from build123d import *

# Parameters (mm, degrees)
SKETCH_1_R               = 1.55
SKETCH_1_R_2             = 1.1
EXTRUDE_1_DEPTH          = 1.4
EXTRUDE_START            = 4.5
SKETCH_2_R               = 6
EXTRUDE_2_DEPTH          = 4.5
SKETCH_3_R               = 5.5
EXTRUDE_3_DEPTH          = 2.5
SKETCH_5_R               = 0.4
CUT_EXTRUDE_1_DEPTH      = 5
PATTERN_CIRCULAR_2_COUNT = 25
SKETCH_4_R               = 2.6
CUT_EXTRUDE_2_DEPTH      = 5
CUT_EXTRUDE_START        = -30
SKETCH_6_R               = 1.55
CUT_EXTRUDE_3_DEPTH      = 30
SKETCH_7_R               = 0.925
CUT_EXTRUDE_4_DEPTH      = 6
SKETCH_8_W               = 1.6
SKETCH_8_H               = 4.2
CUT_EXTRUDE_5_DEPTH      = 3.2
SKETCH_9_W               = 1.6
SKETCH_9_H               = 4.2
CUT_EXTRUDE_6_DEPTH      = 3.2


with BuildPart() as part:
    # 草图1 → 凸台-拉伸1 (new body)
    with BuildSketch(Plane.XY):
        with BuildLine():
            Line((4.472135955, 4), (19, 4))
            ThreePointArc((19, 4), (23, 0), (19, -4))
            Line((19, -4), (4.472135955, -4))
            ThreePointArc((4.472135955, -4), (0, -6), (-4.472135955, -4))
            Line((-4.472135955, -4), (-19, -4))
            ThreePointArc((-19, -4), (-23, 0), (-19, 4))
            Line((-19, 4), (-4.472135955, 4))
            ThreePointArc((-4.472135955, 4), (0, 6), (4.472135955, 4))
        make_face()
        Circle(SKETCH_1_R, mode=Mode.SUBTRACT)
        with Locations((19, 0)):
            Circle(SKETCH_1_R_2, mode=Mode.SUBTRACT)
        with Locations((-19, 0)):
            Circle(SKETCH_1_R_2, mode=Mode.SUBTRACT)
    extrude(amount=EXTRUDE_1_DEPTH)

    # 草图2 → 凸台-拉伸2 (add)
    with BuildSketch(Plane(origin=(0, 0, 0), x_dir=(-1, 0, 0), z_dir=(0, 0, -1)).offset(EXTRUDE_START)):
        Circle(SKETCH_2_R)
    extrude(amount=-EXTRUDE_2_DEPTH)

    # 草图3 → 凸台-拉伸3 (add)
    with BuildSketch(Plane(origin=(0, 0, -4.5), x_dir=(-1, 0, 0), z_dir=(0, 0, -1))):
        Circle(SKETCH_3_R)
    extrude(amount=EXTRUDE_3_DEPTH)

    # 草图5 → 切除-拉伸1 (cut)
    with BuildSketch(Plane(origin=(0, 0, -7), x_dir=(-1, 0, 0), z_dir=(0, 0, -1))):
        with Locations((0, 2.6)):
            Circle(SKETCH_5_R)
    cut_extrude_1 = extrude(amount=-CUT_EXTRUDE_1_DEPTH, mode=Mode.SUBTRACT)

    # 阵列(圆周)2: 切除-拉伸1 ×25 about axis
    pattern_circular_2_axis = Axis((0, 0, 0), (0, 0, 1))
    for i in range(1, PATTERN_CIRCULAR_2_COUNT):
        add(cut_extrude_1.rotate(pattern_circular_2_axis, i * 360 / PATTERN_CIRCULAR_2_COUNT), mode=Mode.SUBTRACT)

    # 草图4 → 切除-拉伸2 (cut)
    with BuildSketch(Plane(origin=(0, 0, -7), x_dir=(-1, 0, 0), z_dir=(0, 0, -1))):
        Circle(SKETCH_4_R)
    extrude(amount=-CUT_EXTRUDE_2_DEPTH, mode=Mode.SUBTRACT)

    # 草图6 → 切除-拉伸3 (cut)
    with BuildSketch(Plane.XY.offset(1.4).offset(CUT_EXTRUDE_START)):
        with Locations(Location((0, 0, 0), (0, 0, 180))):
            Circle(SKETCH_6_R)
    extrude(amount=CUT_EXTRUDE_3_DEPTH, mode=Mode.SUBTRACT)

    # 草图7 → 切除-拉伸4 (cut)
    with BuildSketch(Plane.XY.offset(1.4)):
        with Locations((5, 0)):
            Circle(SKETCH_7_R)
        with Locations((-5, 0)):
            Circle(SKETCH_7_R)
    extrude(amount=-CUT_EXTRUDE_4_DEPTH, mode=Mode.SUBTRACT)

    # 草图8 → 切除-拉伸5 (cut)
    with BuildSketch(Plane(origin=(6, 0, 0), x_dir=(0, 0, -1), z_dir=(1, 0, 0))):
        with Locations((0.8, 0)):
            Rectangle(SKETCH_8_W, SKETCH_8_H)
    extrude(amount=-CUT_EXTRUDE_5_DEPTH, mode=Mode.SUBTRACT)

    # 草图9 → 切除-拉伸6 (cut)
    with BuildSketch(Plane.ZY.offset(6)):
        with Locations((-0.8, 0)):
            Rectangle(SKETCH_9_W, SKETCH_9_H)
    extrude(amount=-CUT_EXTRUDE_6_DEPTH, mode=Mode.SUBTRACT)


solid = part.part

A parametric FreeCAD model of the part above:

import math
import FreeCAD as App
import Part
import Sketcher
Q = App.Units.Quantity

doc = App.newDocument("Part")
body = doc.addObject("PartDesign::Body", "Body")

sketch1 = doc.addObject("Sketcher::SketchObject", "Sketch")
body.addObject(sketch1)
sketch1.AttachmentSupport = (doc.XY_Plane, [""])
sketch1.MapMode = "FlatFace"
sketch1.addGeometry(Part.LineSegment(App.Vector(19, 4, 0), App.Vector(4.5, 4, 0)), False)
sketch1.addGeometry(Part.ArcOfCircle(Part.Circle(App.Vector(0, 0, 0), App.Vector(0, 0, 1), 6), math.radians(42), math.radians(138)), False)
sketch1.addGeometry(Part.LineSegment(App.Vector(-4.5, 4, 0), App.Vector(-19, 4, 0)), False)
sketch1.addGeometry(Part.ArcOfCircle(Part.Circle(App.Vector(-19, 0, 0), App.Vector(0, 0, 1), 4), math.radians(90), math.radians(270)), False)
sketch1.addGeometry(Part.LineSegment(App.Vector(-19, -4, 0), App.Vector(-4.5, -4, 0)), False)
sketch1.addGeometry(Part.ArcOfCircle(Part.Circle(App.Vector(0, 0, 0), App.Vector(0, 0, 1), 6), math.radians(-138), math.radians(-42)), False)
sketch1.addGeometry(Part.LineSegment(App.Vector(4.5, -4, 0), App.Vector(19, -4, 0)), False)
sketch1.addGeometry(Part.ArcOfCircle(Part.Circle(App.Vector(19, 0, 0), App.Vector(0, 0, 1), 4), math.radians(-90), math.radians(90)), False)
sketch1.addGeometry(Part.Circle(App.Vector(19, 0, 0), App.Vector(0, 0, 1), 1.1), False)
sketch1.addGeometry(Part.Circle(App.Vector(0, 0, 0), App.Vector(0, 0, 1), 1.6), False)
sketch1.addGeometry(Part.Circle(App.Vector(-19, 0, 0), App.Vector(0, 0, 1), 1.1), False)
sketch1.addConstraint(Sketcher.Constraint("Coincident", 0, 2, 1, 1))
sketch1.addConstraint(Sketcher.Constraint("Coincident", 1, 2, 2, 1))
sketch1.addConstraint(Sketcher.Constraint("Tangent", 2, 2, 3, 1))
sketch1.addConstraint(Sketcher.Constraint("Tangent", 3, 2, 4, 1))
sketch1.addConstraint(Sketcher.Constraint("Coincident", 4, 2, 5, 1))
sketch1.addConstraint(Sketcher.Constraint("Coincident", 5, 2, 6, 1))
sketch1.addConstraint(Sketcher.Constraint("Tangent", 6, 2, 7, 1))
sketch1.addConstraint(Sketcher.Constraint("Tangent", 7, 2, 0, 1))
sketch1.addConstraint(Sketcher.Constraint("Horizontal", 0))
sketch1.addConstraint(Sketcher.Constraint("Horizontal", 2))
sketch1.addConstraint(Sketcher.Constraint("Horizontal", 4))
sketch1.addConstraint(Sketcher.Constraint("Horizontal", 6))
sketch1.addConstraint(Sketcher.Constraint("Coincident", 1, 3, -1, 1))
sketch1.addConstraint(Sketcher.Constraint("Coincident", 5, 3, -1, 1))
sketch1.addConstraint(Sketcher.Constraint("Coincident", 9, 3, -1, 1))
sketch1.addConstraint(Sketcher.Constraint("Coincident", 8, 3, 7, 3))
sketch1.addConstraint(Sketcher.Constraint("Coincident", 10, 3, 3, 3))
sketch1.addConstraint(Sketcher.Constraint("Equal", 1, 5))
sketch1.addConstraint(Sketcher.Constraint("Equal", 3, 7))
sketch1.addConstraint(Sketcher.Constraint("Equal", 8, 10))
sketch1.addConstraint(Sketcher.Constraint("Symmetric", 3, 3, 7, 3, -1, 1))
sketch1.addConstraint(Sketcher.Constraint("PointOnObject", 3, 3, -1))
sketch1.addConstraint(Sketcher.Constraint("Radius", 1, Q("6 mm")))
sketch1.addConstraint(Sketcher.Constraint("Radius", 3, Q("4 mm")))
sketch1.addConstraint(Sketcher.Constraint("Diameter", 8, Q("2.2 mm")))
sketch1.addConstraint(Sketcher.Constraint("Diameter", 9, Q("3.1 mm")))
sketch1.addConstraint(Sketcher.Constraint("DistanceX", 3, 3, -1, 1, Q("19 mm")))
pad1 = doc.addObject("PartDesign::Pad", "Pad")
body.addObject(pad1)
pad1.Profile = sketch1
pad1.Length = 1.4

sketch2 = doc.addObject("Sketcher::SketchObject", "Sketch001")
body.addObject(sketch2)
sketch2.AttachmentSupport = (doc.XY_Plane, [""])
sketch2.MapMode = "FlatFace"
sketch2.AttachmentOffset = App.Placement(App.Vector(0, 0, -4.5), App.Rotation())
sketch2.addGeometry(Part.Circle(App.Vector(0, 0, 0), App.Vector(0, 0, 1), 6), False)
sketch2.addConstraint(Sketcher.Constraint("Coincident", 0, 3, -1, 1))
sketch2.addConstraint(Sketcher.Constraint("Diameter", 0, Q("12 mm")))
pad2 = doc.addObject("PartDesign::Pad", "Pad001")
body.addObject(pad2)
pad2.Profile = sketch2
pad2.Length = 4.5

sketch3 = doc.addObject("Sketcher::SketchObject", "Sketch002")
body.addObject(sketch3)
sketch3.AttachmentSupport = (doc.XY_Plane, [""])
sketch3.MapMode = "FlatFace"
sketch3.AttachmentOffset = App.Placement(App.Vector(0, 0, -4.5), App.Rotation())
sketch3.addGeometry(Part.Circle(App.Vector(0, 0, 0), App.Vector(0, 0, 1), 6), False)
sketch3.addConstraint(Sketcher.Constraint("Coincident", 0, 3, -1, 1))
sketch3.addConstraint(Sketcher.Constraint("Diameter", 0, Q("11 mm")))
pad3 = doc.addObject("PartDesign::Pad", "Pad002")
body.addObject(pad3)
pad3.Profile = sketch3
pad3.Length = 2.5
pad3.Reversed = True

sketch4 = doc.addObject("Sketcher::SketchObject", "Sketch003")
body.addObject(sketch4)
sketch4.AttachmentSupport = (doc.XY_Plane, [""])
sketch4.MapMode = "FlatFace"
sketch4.AttachmentOffset = App.Placement(App.Vector(0, 0, -7), App.Rotation())
sketch4.addGeometry(Part.Circle(App.Vector(0, 2.6, 0), App.Vector(0, 0, 1), 0.4), False)
sketch4.addConstraint(Sketcher.Constraint("PointOnObject", 0, 3, -2))
sketch4.addConstraint(Sketcher.Constraint("Diameter", 0, Q("0.8 mm")))
sketch4.addConstraint(Sketcher.Constraint("DistanceY", -1, 1, 0, 3, Q("2.6 mm")))
pocket1 = doc.addObject("PartDesign::Pocket", "Pocket")
body.addObject(pocket1)
pocket1.Profile = sketch4
pocket1.Length = 5
pocket1.Reversed = True
doc.recompute()

polarpattern = doc.addObject("PartDesign::PolarPattern", "PolarPattern")
body.addObject(polarpattern)
polarpattern.Originals = [pocket1]
polarpattern.Axis = (doc.Z_Axis, [""])
polarpattern.Angle = 360
polarpattern.Occurrences = 25
body.Tip = polarpattern

sketch5 = doc.addObject("Sketcher::SketchObject", "Sketch004")
body.addObject(sketch5)
sketch5.AttachmentSupport = (doc.XY_Plane, [""])
sketch5.MapMode = "FlatFace"
sketch5.AttachmentOffset = App.Placement(App.Vector(0, 0, -7), App.Rotation())
sketch5.addGeometry(Part.Circle(App.Vector(0, 0, 0), App.Vector(0, 0, 1), 2.6), False)
sketch5.addConstraint(Sketcher.Constraint("Coincident", 0, 3, -1, 1))
sketch5.addConstraint(Sketcher.Constraint("Diameter", 0, Q("5.2 mm")))
pocket2 = doc.addObject("PartDesign::Pocket", "Pocket001")
body.addObject(pocket2)
pocket2.Profile = sketch5
pocket2.Length = 5
pocket2.Reversed = True

sketch6 = doc.addObject("Sketcher::SketchObject", "Sketch005")
body.addObject(sketch6)
sketch6.AttachmentSupport = (doc.XY_Plane, [""])
sketch6.MapMode = "FlatFace"
sketch6.AttachmentOffset = App.Placement(App.Vector(0, 0, -28.6), App.Rotation())
sketch6.addGeometry(Part.Circle(App.Vector(0, 0, 0), App.Vector(0, 0, 1), 1.6), False)
sketch6.addConstraint(Sketcher.Constraint("Coincident", 0, 3, -1, 1))
sketch6.addConstraint(Sketcher.Constraint("Diameter", 0, Q("3.1 mm")))
pocket3 = doc.addObject("PartDesign::Pocket", "Pocket002")
body.addObject(pocket3)
pocket3.Profile = sketch6
pocket3.Length = 30
pocket3.Reversed = True

sketch7 = doc.addObject("Sketcher::SketchObject", "Sketch006")
body.addObject(sketch7)
sketch7.AttachmentSupport = (doc.XY_Plane, [""])
sketch7.MapMode = "FlatFace"
sketch7.AttachmentOffset = App.Placement(App.Vector(0, 0, 1.4), App.Rotation())
sketch7.addGeometry(Part.Circle(App.Vector(5, 0, 0), App.Vector(0, 0, 1), 0.9), False)
sketch7.addGeometry(Part.Circle(App.Vector(-5, 0, 0), App.Vector(0, 0, 1), 0.9), False)
sketch7.addConstraint(Sketcher.Constraint("Equal", 0, 1))
sketch7.addConstraint(Sketcher.Constraint("Symmetric", 0, 3, 1, 3, -1, 1))
sketch7.addConstraint(Sketcher.Constraint("PointOnObject", 0, 3, -1))
sketch7.addConstraint(Sketcher.Constraint("Diameter", 0, Q("1.85 mm")))
sketch7.addConstraint(Sketcher.Constraint("DistanceX", -1, 1, 0, 3, Q("5 mm")))
pocket4 = doc.addObject("PartDesign::Pocket", "Pocket003")
body.addObject(pocket4)
pocket4.Profile = sketch7
pocket4.Length = 6

sketch8 = doc.addObject("Sketcher::SketchObject", "Sketch007")
body.addObject(sketch8)
sketch8.AttachmentSupport = (doc.YZ_Plane, [""])
sketch8.MapMode = "FlatFace"
sketch8.AttachmentOffset = App.Placement(App.Vector(0, 0, 6), App.Rotation())
sketch8.addGeometry(Part.LineSegment(App.Vector(2.1, 0, 0), App.Vector(-2.1, 0, 0)), False)
sketch8.addGeometry(Part.LineSegment(App.Vector(-2.1, 0, 0), App.Vector(-2.1, -1.6, 0)), False)
sketch8.addGeometry(Part.LineSegment(App.Vector(-2.1, -1.6, 0), App.Vector(2.1, -1.6, 0)), False)
sketch8.addGeometry(Part.LineSegment(App.Vector(2.1, -1.6, 0), App.Vector(2.1, 0, 0)), False)
sketch8.addConstraint(Sketcher.Constraint("Coincident", 0, 2, 1, 1))
sketch8.addConstraint(Sketcher.Constraint("Coincident", 1, 2, 2, 1))
sketch8.addConstraint(Sketcher.Constraint("Coincident", 2, 2, 3, 1))
sketch8.addConstraint(Sketcher.Constraint("Coincident", 3, 2, 0, 1))
sketch8.addConstraint(Sketcher.Constraint("Horizontal", 0))
sketch8.addConstraint(Sketcher.Constraint("Vertical", 1))
sketch8.addConstraint(Sketcher.Constraint("Horizontal", 2))
sketch8.addConstraint(Sketcher.Constraint("Vertical", 3))
sketch8.addConstraint(Sketcher.Constraint("Symmetric", 0, 2, 3, 2, -1, 1))
sketch8.addConstraint(Sketcher.Constraint("DistanceX", 0, 2, 0, 1, Q("4.2 mm")))
sketch8.addConstraint(Sketcher.Constraint("DistanceY", 1, 2, 1, 1, Q("1.6 mm")))
pocket5 = doc.addObject("PartDesign::Pocket", "Pocket004")
body.addObject(pocket5)
pocket5.Profile = sketch8
pocket5.Length = 3.2

sketch9 = doc.addObject("Sketcher::SketchObject", "Sketch008")
body.addObject(sketch9)
sketch9.AttachmentSupport = (doc.YZ_Plane, [""])
sketch9.MapMode = "FlatFace"
sketch9.AttachmentOffset = App.Placement(App.Vector(0, 0, -6), App.Rotation())
sketch9.addGeometry(Part.LineSegment(App.Vector(2.1, -1.6, 0), App.Vector(-2.1, -1.6, 0)), False)
sketch9.addGeometry(Part.LineSegment(App.Vector(-2.1, -1.6, 0), App.Vector(-2.1, 0, 0)), False)
sketch9.addGeometry(Part.LineSegment(App.Vector(-2.1, 0, 0), App.Vector(2.1, 0, 0)), False)
sketch9.addGeometry(Part.LineSegment(App.Vector(2.1, 0, 0), App.Vector(2.1, -1.6, 0)), False)
sketch9.addConstraint(Sketcher.Constraint("Coincident", 0, 2, 1, 1))
sketch9.addConstraint(Sketcher.Constraint("Coincident", 1, 2, 2, 1))
sketch9.addConstraint(Sketcher.Constraint("Coincident", 2, 2, 3, 1))
sketch9.addConstraint(Sketcher.Constraint("Coincident", 3, 2, 0, 1))
sketch9.addConstraint(Sketcher.Constraint("Horizontal", 0))
sketch9.addConstraint(Sketcher.Constraint("Vertical", 1))
sketch9.addConstraint(Sketcher.Constraint("Horizontal", 2))
sketch9.addConstraint(Sketcher.Constraint("Vertical", 3))
sketch9.addConstraint(Sketcher.Constraint("Symmetric", 1, 2, 2, 2, -1, 1))
sketch9.addConstraint(Sketcher.Constraint("DistanceX", 0, 2, 0, 1, Q("4.2 mm")))
sketch9.addConstraint(Sketcher.Constraint("DistanceY", 1, 1, 1, 2, Q("1.6 mm")))
pocket6 = doc.addObject("PartDesign::Pocket", "Pocket005")
body.addObject(pocket6)
pocket6.Profile = sketch9
pocket6.Length = 3.2
pocket6.Reversed = True

doc.recompute()
